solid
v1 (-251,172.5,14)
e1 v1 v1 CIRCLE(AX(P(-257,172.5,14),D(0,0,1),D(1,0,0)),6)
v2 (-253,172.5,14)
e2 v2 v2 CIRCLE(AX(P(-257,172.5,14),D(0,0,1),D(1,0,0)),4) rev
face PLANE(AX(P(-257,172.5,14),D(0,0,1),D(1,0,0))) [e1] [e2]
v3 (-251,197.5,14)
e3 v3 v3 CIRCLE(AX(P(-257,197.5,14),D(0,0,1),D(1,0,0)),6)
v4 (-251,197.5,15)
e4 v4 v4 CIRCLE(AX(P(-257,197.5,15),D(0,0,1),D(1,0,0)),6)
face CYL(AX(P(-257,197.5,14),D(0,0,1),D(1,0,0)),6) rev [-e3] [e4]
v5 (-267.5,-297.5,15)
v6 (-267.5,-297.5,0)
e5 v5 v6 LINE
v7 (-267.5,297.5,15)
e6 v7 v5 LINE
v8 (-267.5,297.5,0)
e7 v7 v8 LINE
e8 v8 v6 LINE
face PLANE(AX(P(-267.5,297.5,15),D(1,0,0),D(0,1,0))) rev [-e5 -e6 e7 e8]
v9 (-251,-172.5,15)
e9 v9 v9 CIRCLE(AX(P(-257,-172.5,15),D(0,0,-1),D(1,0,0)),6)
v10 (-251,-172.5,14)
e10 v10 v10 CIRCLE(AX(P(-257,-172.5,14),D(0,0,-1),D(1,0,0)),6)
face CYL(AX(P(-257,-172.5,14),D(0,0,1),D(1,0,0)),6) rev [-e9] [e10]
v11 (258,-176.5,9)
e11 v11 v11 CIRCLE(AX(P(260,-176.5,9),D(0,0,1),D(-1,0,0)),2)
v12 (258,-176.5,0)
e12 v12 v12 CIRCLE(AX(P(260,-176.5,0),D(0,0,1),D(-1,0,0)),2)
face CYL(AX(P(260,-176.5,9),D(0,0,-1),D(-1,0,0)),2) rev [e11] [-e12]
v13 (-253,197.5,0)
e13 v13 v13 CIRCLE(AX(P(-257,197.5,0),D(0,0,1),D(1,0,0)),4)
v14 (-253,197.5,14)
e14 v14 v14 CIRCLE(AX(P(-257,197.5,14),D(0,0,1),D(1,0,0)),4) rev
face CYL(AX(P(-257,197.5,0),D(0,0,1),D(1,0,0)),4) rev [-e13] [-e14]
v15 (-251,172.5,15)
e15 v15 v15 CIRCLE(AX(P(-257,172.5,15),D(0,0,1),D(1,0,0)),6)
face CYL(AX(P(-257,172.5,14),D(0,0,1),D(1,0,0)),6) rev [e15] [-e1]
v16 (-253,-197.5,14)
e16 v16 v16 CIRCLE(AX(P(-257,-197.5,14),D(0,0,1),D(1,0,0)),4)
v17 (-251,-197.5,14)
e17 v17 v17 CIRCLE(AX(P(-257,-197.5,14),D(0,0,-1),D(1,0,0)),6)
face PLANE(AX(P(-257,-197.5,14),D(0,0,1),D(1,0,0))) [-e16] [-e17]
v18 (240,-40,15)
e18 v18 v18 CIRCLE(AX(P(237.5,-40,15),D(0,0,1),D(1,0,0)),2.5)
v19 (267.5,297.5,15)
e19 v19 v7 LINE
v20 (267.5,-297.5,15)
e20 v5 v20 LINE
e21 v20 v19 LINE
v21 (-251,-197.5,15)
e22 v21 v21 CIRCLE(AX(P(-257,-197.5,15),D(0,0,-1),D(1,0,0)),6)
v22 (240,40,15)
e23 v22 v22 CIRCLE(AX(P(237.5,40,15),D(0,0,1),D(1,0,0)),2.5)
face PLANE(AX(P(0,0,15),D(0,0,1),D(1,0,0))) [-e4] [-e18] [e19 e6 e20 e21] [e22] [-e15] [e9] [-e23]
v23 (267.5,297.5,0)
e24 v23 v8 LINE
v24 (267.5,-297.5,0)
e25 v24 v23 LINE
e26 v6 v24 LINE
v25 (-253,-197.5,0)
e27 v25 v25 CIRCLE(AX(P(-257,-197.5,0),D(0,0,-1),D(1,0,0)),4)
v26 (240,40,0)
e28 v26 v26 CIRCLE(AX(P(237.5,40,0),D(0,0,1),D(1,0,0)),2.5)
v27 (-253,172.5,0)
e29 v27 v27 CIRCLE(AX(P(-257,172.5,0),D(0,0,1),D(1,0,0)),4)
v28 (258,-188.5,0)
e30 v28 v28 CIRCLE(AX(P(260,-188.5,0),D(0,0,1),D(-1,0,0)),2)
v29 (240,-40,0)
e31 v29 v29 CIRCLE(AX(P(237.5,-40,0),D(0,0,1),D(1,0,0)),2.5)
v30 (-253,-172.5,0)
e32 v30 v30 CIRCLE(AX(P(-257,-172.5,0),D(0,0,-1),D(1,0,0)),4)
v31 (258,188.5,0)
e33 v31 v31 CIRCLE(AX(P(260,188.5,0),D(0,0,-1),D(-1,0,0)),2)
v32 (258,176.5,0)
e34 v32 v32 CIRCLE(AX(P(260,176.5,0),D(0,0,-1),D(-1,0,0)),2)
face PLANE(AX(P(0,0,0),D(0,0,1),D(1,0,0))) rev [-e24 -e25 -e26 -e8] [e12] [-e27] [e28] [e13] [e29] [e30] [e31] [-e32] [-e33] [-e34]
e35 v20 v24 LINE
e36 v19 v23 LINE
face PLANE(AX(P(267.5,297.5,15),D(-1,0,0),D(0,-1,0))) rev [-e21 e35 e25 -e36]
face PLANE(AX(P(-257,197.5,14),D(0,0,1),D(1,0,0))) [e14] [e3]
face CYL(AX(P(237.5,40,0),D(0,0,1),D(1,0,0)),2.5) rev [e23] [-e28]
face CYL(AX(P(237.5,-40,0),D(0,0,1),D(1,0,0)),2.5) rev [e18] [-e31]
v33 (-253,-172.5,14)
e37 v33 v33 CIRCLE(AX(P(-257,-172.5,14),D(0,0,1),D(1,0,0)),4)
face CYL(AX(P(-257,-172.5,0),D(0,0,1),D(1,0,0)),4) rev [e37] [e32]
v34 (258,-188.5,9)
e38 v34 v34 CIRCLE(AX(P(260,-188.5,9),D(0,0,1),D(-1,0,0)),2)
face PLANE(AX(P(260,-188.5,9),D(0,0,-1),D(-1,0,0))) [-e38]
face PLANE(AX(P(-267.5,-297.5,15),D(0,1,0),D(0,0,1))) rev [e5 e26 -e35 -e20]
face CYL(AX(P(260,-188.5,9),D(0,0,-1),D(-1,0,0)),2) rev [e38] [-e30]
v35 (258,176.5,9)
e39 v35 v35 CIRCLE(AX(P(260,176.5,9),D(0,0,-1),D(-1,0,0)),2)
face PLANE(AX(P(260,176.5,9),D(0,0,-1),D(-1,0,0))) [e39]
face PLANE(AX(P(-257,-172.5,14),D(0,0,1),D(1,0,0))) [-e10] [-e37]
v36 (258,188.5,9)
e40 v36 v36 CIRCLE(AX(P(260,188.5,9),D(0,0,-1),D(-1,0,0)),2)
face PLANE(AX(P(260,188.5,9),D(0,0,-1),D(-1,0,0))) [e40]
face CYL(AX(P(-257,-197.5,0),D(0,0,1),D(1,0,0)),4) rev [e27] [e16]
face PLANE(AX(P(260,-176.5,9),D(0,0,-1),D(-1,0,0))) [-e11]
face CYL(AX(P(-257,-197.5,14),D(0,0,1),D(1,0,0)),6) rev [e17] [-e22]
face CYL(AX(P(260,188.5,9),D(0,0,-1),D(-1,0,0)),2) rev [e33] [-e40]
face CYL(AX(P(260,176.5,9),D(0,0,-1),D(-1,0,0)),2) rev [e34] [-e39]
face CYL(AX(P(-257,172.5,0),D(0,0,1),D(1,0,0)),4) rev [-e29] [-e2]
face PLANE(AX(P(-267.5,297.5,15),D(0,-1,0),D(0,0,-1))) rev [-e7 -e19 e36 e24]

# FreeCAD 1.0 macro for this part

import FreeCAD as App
import Part
import Sketcher
from FreeCAD import Vector


def add_polygon(sketch, points):
    """Adds a closed chain of lines whose ends are joined by coincident constraints."""
    first, n = sketch.GeometryCount, len(points)
    for a, b in zip(points, points[1:] + points[:1]):
        sketch.addGeometry(Part.LineSegment(App.Vector(*a, 0), App.Vector(*b, 0)), False)
    for i in range(n):
        sketch.addConstraint(Sketcher.Constraint("Coincident", first + i, 2, first + (i + 1) % n, 1))

doc = App.newDocument("Part")
params = doc.addObject("Spreadsheet::Sheet", "Params")
for row, (alias, value) in enumerate([
    ("sketch1_width", "535 mm"),
    ("sketch1_height", "595 mm"),
    ("pad1_length", "15 mm"),
    ("sketch2_diameter", "8 mm"),
    ("sketch3_diameter", "12 mm"),
    ("pocket2_length", "1 mm"),
    ("sketch4_diameter", "5 mm"),
    ("sketch5_diameter", "4 mm"),
    ("pocket4_length", "9 mm"),
], start=1):
    params.set(f"A{row}", alias)
    params.set(f"B{row}", "=" + value)
    params.setAlias(f"B{row}", alias)

body = doc.addObject("PartDesign::Body", "Body")

sketch1 = doc.addObject("Sketcher::SketchObject", "Sketch")
body.addObject(sketch1)
sketch1.AttachmentSupport = (doc.XY_Plane, [""])
sketch1.MapMode = "FlatFace"
add_polygon(sketch1, [(-268, 298), (-268, -298), (268, -298), (268, 298)])
sketch1.addConstraint(Sketcher.Constraint("Vertical", 0))
sketch1.addConstraint(Sketcher.Constraint("Horizontal", 1))
sketch1.addConstraint(Sketcher.Constraint("Vertical", 2))
sketch1.addConstraint(Sketcher.Constraint("Horizontal", 3))
sketch1.addConstraint(Sketcher.Constraint("Symmetric", 0, 2, 2, 2, -1, 1))
sketch1.addConstraint(Sketcher.Constraint("DistanceX", 1, 1, 1, 2, 535.0))
sketch1.addConstraint(Sketcher.Constraint("DistanceY", 0, 2, 0, 1, 595.0))
sketch1.setExpression("Constraints[9]", "Params.sketch1_width")
sketch1.setExpression("Constraints[10]", "Params.sketch1_height")
pad1 = doc.addObject("PartDesign::Pad", "Pad")
body.addObject(pad1)
pad1.Profile = sketch1
pad1.setExpression("Length", "Params.pad1_length")

sketch2 = doc.addObject("Sketcher::SketchObject", "Sketch001")
body.addObject(sketch2)
sketch2.AttachmentSupport = (doc.XY_Plane, [""])
sketch2.MapMode = "FlatFace"
sketch2.AttachmentOffset = App.Placement(Vector(0, 0, 15), App.Rotation())
sketch2.addGeometry(Part.Circle(Vector(-257, 197.5, 0), Vector(0, 0, 1), 4), False)
sketch2.addGeometry(Part.Circle(Vector(-257, 172.5, 0), Vector(0, 0, 1), 4), False)
sketch2.addConstraint(Sketcher.Constraint("Equal", 0, 1))
sketch2.addConstraint(Sketcher.Constraint("Vertical", 0, 3, 1, 3))
sketch2.addConstraint(Sketcher.Constraint("Diameter", 0, 8.0))
sketch2.addConstraint(Sketcher.Constraint("DistanceX", 0, 3, -1, 1, 257.0))
sketch2.addConstraint(Sketcher.Constraint("DistanceY", 1, 3, 0, 3, 25.0))
sketch2.addConstraint(Sketcher.Constraint("DistanceY", -1, 1, 0, 3, 197.5))
sketch2.setExpression("Constraints[2]", "Params.sketch2_diameter")
pocket1 = doc.addObject("PartDesign::Pocket", "Pocket")
body.addObject(pocket1)
pocket1.Profile = sketch2
pocket1.Type = "ThroughAll"
doc.recompute()

mirrored = doc.addObject("PartDesign::Mirrored", "Mirrored")
body.addObject(mirrored)
mirrored.Originals = [pocket1]
mirrored.MirrorPlane = (doc.XZ_Plane, [""])
body.Tip = mirrored

sketch3 = doc.addObject("Sketcher::SketchObject", "Sketch002")
body.addObject(sketch3)
sketch3.AttachmentSupport = (doc.XY_Plane, [""])
sketch3.MapMode = "FlatFace"
sketch3.AttachmentOffset = App.Placement(Vector(0, 0, 15), App.Rotation())
sketch3.addGeometry(Part.Circle(Vector(-257, 198, 0), Vector(0, 0, 1), 6), False)
sketch3.addGeometry(Part.Circle(Vector(-257, 172, 0), Vector(0, 0, 1), 6), False)
sketch3.addConstraint(Sketcher.Constraint("Equal", 0, 1))
sketch3.addConstraint(Sketcher.Constraint("Vertical", 0, 3, 1, 3))
sketch3.addConstraint(Sketcher.Constraint("Diameter", 0, 12.0))
sketch3.addConstraint(Sketcher.Constraint("DistanceX", 0, 3, -1, 1, 257.0))
sketch3.addConstraint(Sketcher.Constraint("DistanceY", 1, 3, 0, 3, 25.0))
sketch3.addConstraint(Sketcher.Constraint("DistanceY", -1, 1, 0, 3, 197.5))
sketch3.setExpression("Constraints[2]", "Params.sketch3_diameter")
pocket2 = doc.addObject("PartDesign::Pocket", "Pocket001")
body.addObject(pocket2)
pocket2.Profile = sketch3
pocket2.setExpression("Length", "Params.pocket2_length")
doc.recompute()

mirrored2 = doc.addObject("PartDesign::Mirrored", "Mirrored001")
body.addObject(mirrored2)
mirrored2.Originals = [pocket2]
mirrored2.MirrorPlane = (doc.XZ_Plane, [""])
body.Tip = mirrored2

sketch4 = doc.addObject("Sketcher::SketchObject", "Sketch003")
body.addObject(sketch4)
sketch4.AttachmentSupport = (doc.XY_Plane, [""])
sketch4.MapMode = "FlatFace"
sketch4.AttachmentOffset = App.Placement(Vector(0, 0, 15), App.Rotation())
sketch4.addGeometry(Part.Circle(Vector(237.5, 40, 0), Vector(0, 0, 1), 2.5), False)
sketch4.addGeometry(Part.Circle(Vector(237.5, -40, 0), Vector(0, 0, 1), 2.5), False)
sketch4.addConstraint(Sketcher.Constraint("Equal", 0, 1))
sketch4.addConstraint(Sketcher.Constraint("Symmetric", 0, 3, 1, 3, -1))
sketch4.addConstraint(Sketcher.Constraint("Diameter", 0, 5.0))
sketch4.addConstraint(Sketcher.Constraint("DistanceY", -1, 1, 0, 3, 40.0))
sketch4.addConstraint(Sketcher.Constraint("DistanceX", -1, 1, 0, 3, 237.5))
sketch4.setExpression("Constraints[2]", "Params.sketch4_diameter")
pocket3 = doc.addObject("PartDesign::Pocket", "Pocket002")
body.addObject(pocket3)
pocket3.Profile = sketch4
pocket3.Type = "ThroughAll"

sketch5 = doc.addObject("Sketcher::SketchObject", "Sketch004")
body.addObject(sketch5)
sketch5.AttachmentSupport = (doc.XY_Plane, [""])
sketch5.MapMode = "FlatFace"
sketch5.addGeometry(Part.Circle(Vector(260, 188.5, 0), Vector(0, 0, 1), 2), False)
sketch5.addGeometry(Part.Circle(Vector(260, 176.5, 0), Vector(0, 0, 1), 2), False)
sketch5.addConstraint(Sketcher.Constraint("Equal", 0, 1))
sketch5.addConstraint(Sketcher.Constraint("Vertical", 0, 3, 1, 3))
sketch5.addConstraint(Sketcher.Constraint("Diameter", 0, 4.0))
sketch5.addConstraint(Sketcher.Constraint("DistanceX", -1, 1, 0, 3, 260.0))
sketch5.addConstraint(Sketcher.Constraint("DistanceY", 1, 3, 0, 3, 12.0))
sketch5.addConstraint(Sketcher.Constraint("DistanceY", -1, 1, 0, 3, 188.5))
sketch5.setExpression("Constraints[2]", "Params.sketch5_diameter")
pocket4 = doc.addObject("PartDesign::Pocket", "Pocket003")
body.addObject(pocket4)
pocket4.Profile = sketch5
pocket4.setExpression("Length", "Params.pocket4_length")
pocket4.Reversed = True
doc.recompute()

mirrored3 = doc.addObject("PartDesign::Mirrored", "Mirrored002")
body.addObject(mirrored3)
mirrored3.Originals = [pocket4]
mirrored3.MirrorPlane = (doc.XZ_Plane, [""])
body.Tip = mirrored3

doc.recompute()
